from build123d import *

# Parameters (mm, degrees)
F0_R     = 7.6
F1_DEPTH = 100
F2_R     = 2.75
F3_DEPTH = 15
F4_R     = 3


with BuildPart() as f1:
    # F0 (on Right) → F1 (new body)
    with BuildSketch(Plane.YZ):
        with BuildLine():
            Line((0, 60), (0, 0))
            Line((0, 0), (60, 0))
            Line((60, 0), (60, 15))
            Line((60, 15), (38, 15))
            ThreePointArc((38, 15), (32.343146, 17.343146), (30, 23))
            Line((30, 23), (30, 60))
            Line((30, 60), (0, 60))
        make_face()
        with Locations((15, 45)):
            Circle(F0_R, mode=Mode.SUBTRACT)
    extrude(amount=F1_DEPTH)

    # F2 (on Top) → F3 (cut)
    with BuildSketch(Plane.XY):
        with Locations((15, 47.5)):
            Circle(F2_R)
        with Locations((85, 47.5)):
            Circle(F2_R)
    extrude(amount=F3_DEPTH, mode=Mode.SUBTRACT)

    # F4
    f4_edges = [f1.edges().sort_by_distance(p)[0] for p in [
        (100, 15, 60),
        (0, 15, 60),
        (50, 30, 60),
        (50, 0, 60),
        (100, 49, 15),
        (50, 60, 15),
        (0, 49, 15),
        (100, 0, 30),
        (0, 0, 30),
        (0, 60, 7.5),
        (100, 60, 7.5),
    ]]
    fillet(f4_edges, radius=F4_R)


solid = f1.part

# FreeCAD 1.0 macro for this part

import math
import FreeCAD as App
import Part
import Sketcher
Q = App.Units.Quantity


def edges_at(feature, points):
    """Names of the edges that pass closest to the given points."""
    edges = feature.Shape.Edges
    near = lambda p: min(range(len(edges)), key=lambda i: edges[i].distToShape(Part.Vertex(*p))[0])
    return sorted({f"Edge{near(p) + 1}" for p in points})

doc = App.newDocument("Part")
params = doc.addObject("Spreadsheet::Sheet", "Params")
for row, (alias, value) in enumerate([
    ("sketch1_radius", "8.000001 mm"),
    ("sketch1_diameter", "15.2 mm"),
    ("sketch1_width", "60 mm"),
    ("sketch1_width2", "22 mm"),
    ("sketch1_height", "15 mm"),
    ("pad1_length", "100 mm"),
    ("sketch2_diameter", "5.5 mm"),
    ("pocket1_length", "15 mm"),
    ("fillet_radius", "3 mm"),
], start=1):
    params.set(f"A{row}", alias)
    params.set(f"B{row}", "=" + value)
    params.setAlias(f"B{row}", alias)

body = doc.addObject("PartDesign::Body", "Body")

# Sketch on YZ plane
sketch1 = body.newObject("Sketcher::SketchObject", "Sketch")
sketch1.AttachmentSupport = (doc.getObject("YZ_Plane"), [""])
sketch1.MapMode = "FlatFace"
sketch1.addGeometry(Part.LineSegment(App.Vector(0, 60, 0), App.Vector(0, 0, 0)), False)
sketch1.addGeometry(Part.LineSegment(App.Vector(0, 0, 0), App.Vector(60, 0, 0)), False)
sketch1.addGeometry(Part.LineSegment(App.Vector(60, 0, 0), App.Vector(60, 15, 0)), False)
sketch1.addGeometry(Part.LineSegment(App.Vector(60, 15, 0), App.Vector(38, 15, 0)), False)
sketch1.addGeometry(Part.ArcOfCircle(Part.Circle(App.Vector(38.000001, 23.000001, 0), App.Vector(0, 0, 1), 8.000001), math.radians(-179.999994), math.radians(-90.000006)), False)
sketch1.addGeometry(Part.LineSegment(App.Vector(30, 23, 0), App.Vector(30, 60, 0)), False)
sketch1.addGeometry(Part.LineSegment(App.Vector(30, 60, 0), App.Vector(0, 60, 0)), False)
sketch1.addGeometry(Part.Circle(App.Vector(15, 45, 0), App.Vector(0, 0, 1), 7.6), False)
sketch1.addConstraint(Sketcher.Constraint("Coincident", 0, 2, 1, 1))
sketch1.addConstraint(Sketcher.Constraint("Coincident", 1, 2, 2, 1))
sketch1.addConstraint(Sketcher.Constraint("Coincident", 2, 2, 3, 1))
sketch1.addConstraint(Sketcher.Constraint("Tangent", 3, 2, 4, 2))
sketch1.addConstraint(Sketcher.Constraint("Tangent", 4, 1, 5, 1))
sketch1.addConstraint(Sketcher.Constraint("Coincident", 5, 2, 6, 1))
sketch1.addConstraint(Sketcher.Constraint("Coincident", 6, 2, 0, 1))
sketch1.addConstraint(Sketcher.Constraint("Vertical", 0))
sketch1.addConstraint(Sketcher.Constraint("Horizontal", 1))
sketch1.addConstraint(Sketcher.Constraint("Vertical", 2))
sketch1.addConstraint(Sketcher.Constraint("Horizontal", 3))
sketch1.addConstraint(Sketcher.Constraint("Vertical", 5))
sketch1.addConstraint(Sketcher.Constraint("Horizontal", 6))
sketch1.addConstraint(Sketcher.Constraint("Coincident", 0, 2, -1, 1))
sketch1.addConstraint(Sketcher.Constraint("Equal", 1, 0))
sketch1.addConstraint(Sketcher.Constraint("Radius", 4, Q("8.000001 mm")))
sketch1.addConstraint(Sketcher.Constraint("Diameter", 7, Q("15.2 mm")))
sketch1.addConstraint(Sketcher.Constraint("DistanceX", 1, 1, 1, 2, Q("60 mm")))
sketch1.addConstraint(Sketcher.Constraint("DistanceX", 3, 2, 3, 1, Q("22 mm")))
sketch1.addConstraint(Sketcher.Constraint("DistanceY", 2, 1, 2, 2, Q("15 mm")))
sketch1.addConstraint(Sketcher.Constraint("DistanceX", -1, 1, 7, 3, Q("15 mm")))
sketch1.addConstraint(Sketcher.Constraint("DistanceY", -1, 1, 7, 3, Q("45 mm")))
sketch1.setExpression("Constraints[15]", "Params.sketch1_radius")
sketch1.setExpression("Constraints[16]", "Params.sketch1_diameter")
sketch1.setExpression("Constraints[17]", "Params.sketch1_width")
sketch1.setExpression("Constraints[18]", "Params.sketch1_width2")
sketch1.setExpression("Constraints[19]", "Params.sketch1_height")
pad1 = body.newObject("PartDesign::Pad", "Pad")
pad1.Profile = sketch1
pad1.setExpression("Length", "Params.pad1_length")

# Sketch on XY plane
sketch2 = body.newObject("Sketcher::SketchObject", "Sketch001")
sketch2.AttachmentSupport = (doc.getObject("XY_Plane"), [""])
sketch2.MapMode = "FlatFace"
sketch2.addGeometry(Part.Circle(App.Vector(15, 47.5, 0), App.Vector(0, 0, 1), 2.75), False)
sketch2.addGeometry(Part.Circle(App.Vector(85, 47.5, 0), App.Vector(0, 0, 1), 2.75), False)
sketch2.addConstraint(Sketcher.Constraint("Equal", 0, 1))
sketch2.addConstraint(Sketcher.Constraint("Horizontal", 0, 3, 1, 3))
sketch2.addConstraint(Sketcher.Constraint("Diameter", 0, Q("5.5 mm")))
sketch2.addConstraint(Sketcher.Constraint("DistanceX", -1, 1, 0, 3, Q("15 mm")))
sketch2.addConstraint(Sketcher.Constraint("DistanceX", -1, 1, 1, 3, Q("85 mm")))
sketch2.addConstraint(Sketcher.Constraint("DistanceY", -1, 1, 0, 3, Q("47.5 mm")))
sketch2.setExpression("Constraints[2]", "Params.sketch2_diameter")
pocket1 = body.newObject("PartDesign::Pocket", "Pocket")
pocket1.Profile = sketch2
pocket1.setExpression("Length", "Params.pocket1_length")
pocket1.Reversed = True
doc.recompute()

fillet = body.newObject("PartDesign::Fillet", "Fillet")
fillet.Base = (pocket1, edges_at(pocket1, [
    (100, 15, 60),
    (0, 15, 60),
    (50, 30, 60),
    (50, 0, 60),
    (100, 49, 15),
    (50, 60, 15),
    (0, 49, 15),
    (100, 0, 30),
    (0, 0, 30),
    (0, 60, 7.5),
    (100, 60, 7.5),
]))
fillet.setExpression("Radius", "Params.fillet_radius")

doc.recompute()
